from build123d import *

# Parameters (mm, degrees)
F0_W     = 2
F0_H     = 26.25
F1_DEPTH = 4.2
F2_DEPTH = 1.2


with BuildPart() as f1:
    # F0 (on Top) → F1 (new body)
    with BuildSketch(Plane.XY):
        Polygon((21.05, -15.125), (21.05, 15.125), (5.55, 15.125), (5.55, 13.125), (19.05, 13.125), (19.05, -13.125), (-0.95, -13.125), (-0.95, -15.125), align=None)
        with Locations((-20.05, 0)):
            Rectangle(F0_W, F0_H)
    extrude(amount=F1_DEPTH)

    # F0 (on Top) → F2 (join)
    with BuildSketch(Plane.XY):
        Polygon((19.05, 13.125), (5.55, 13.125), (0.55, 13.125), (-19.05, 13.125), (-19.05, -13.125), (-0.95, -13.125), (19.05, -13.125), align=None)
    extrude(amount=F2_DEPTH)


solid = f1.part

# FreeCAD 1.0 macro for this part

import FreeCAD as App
import Part
import Sketcher
from FreeCAD import Vector
Q = App.Units.Quantity


def add_polygon(sketch, points):
    """Adds a closed chain of lines whose ends are joined by coincident constraints."""
    first, n = sketch.GeometryCount, len(points)
    for a, b in zip(points, points[1:] + points[:1]):
        sketch.addGeometry(Part.LineSegment(App.Vector(*a, 0), App.Vector(*b, 0)), False)
    for i in range(n):
        sketch.addConstraint(Sketcher.Constraint("Coincident", first + i, 2, first + (i + 1) % n, 1))

doc = App.newDocument("Part")
params = doc.addObject("Spreadsheet::Sheet", "Params")
for row, (alias, value) in enumerate([
    ("sketch1_width", "20 mm"),
    ("sketch1_width2", "22 mm"),
    ("sketch1_width3", "2 mm"),
    ("sketch1_width4", "15.5 mm"),
    ("sketch1_height", "30.25 mm"),
    ("pad1_length", "4.2 mm"),
    ("sketch2_width", "38.1 mm"),
    ("sketch2_height", "26.25 mm"),
    ("pad2_length", "1.2 mm"),
], start=1):
    params.set(f"A{row}", alias)
    params.set(f"B{row}", "=" + value)
    params.setAlias(f"B{row}", alias)

body = doc.addObject("PartDesign::Body", "Body")
body.AllowCompound = True

# Sketch on XY plane
sketch1 = doc.addObject("Sketcher::SketchObject", "Sketch")
body.addObject(sketch1)
sketch1.AttachmentSupport = (doc.XY_Plane, [""])
sketch1.MapMode = "FlatFace"
add_polygon(sketch1, [(21.05, -15.125), (21.05, 15.125), (5.55, 15.125), (5.55, 13.125), (19.05, 13.125), (19.05, -13.125), (-0.95, -13.125), (-0.95, -15.125)])  # lines 0-7
add_polygon(sketch1, [(-21.05, 13.125), (-21.05, -13.125), (-19.05, -13.125), (-19.05, 13.125)])  # lines 8-11
sketch1.addConstraint([
    Sketcher.Constraint("Vertical", 0),
    Sketcher.Constraint("Horizontal", 1),
    Sketcher.Constraint("Vertical", 2),
    Sketcher.Constraint("Horizontal", 3),
    Sketcher.Constraint("Vertical", 4),
    Sketcher.Constraint("Horizontal", 5),
    Sketcher.Constraint("Vertical", 6),
    Sketcher.Constraint("Horizontal", 7),
    Sketcher.Constraint("Vertical", 8),
    Sketcher.Constraint("Horizontal", 9),
    Sketcher.Constraint("Vertical", 10),
    Sketcher.Constraint("Horizontal", 11),
    Sketcher.Constraint("Symmetric", 3, 2, 9, 2, -1, 1),
    Sketcher.Constraint("Horizontal", 5, 2, 8, 2),
    Sketcher.Constraint("Horizontal", 3, 2, 10, 2),
    Sketcher.Constraint("Equal", 11, 2),
    Sketcher.Constraint("Equal", 2, 6),
    Sketcher.Constraint("DistanceX", 5, 2, 5, 1, Q("20 mm")),
    Sketcher.Constraint("DistanceX", 7, 1, 7, 2, Q("22 mm")),
    Sketcher.Constraint("DistanceX", 9, 1, 9, 2, Q("2 mm")),
    Sketcher.Constraint("DistanceX", 1, 2, 1, 1, Q("15.5 mm")),
    Sketcher.Constraint("DistanceY", 0, 1, 0, 2, Q("30.25 mm")),
    Sketcher.Constraint("DistanceX", 8, 2, 5, 2, Q("20.1 mm")),
])
sketch1.setExpression("Constraints[29]", "Params.sketch1_width")
sketch1.setExpression("Constraints[30]", "Params.sketch1_width2")
sketch1.setExpression("Constraints[31]", "Params.sketch1_width3")
sketch1.setExpression("Constraints[32]", "Params.sketch1_width4")
sketch1.setExpression("Constraints[33]", "Params.sketch1_height")
pad1 = doc.addObject("PartDesign::Pad", "Pad")
body.addObject(pad1)
pad1.Profile = sketch1
pad1.setExpression("Length", "Params.pad1_length")

# Sketch on XY plane
sketch2 = doc.addObject("Sketcher::SketchObject", "Sketch001")
body.addObject(sketch2)
sketch2.AttachmentSupport = (doc.XY_Plane, [""])
sketch2.MapMode = "FlatFace"
add_polygon(sketch2, [(19.05, 13.125), (-19.05, 13.125), (-19.05, -13.125), (19.05, -13.125)])  # lines 0-3
sketch2.addConstraint([
    Sketcher.Constraint("Horizontal", 0),
    Sketcher.Constraint("Vertical", 1),
    Sketcher.Constraint("Horizontal", 2),
    Sketcher.Constraint("Vertical", 3),
    Sketcher.Constraint("Symmetric", 0, 2, 2, 2, -1, 1),
    Sketcher.Constraint("DistanceX", 0, 2, 0, 1, Q("38.1 mm")),
    Sketcher.Constraint("DistanceY", 1, 2, 1, 1, Q("26.25 mm")),
])
sketch2.setExpression("Constraints[9]", "Params.sketch2_width")
sketch2.setExpression("Constraints[10]", "Params.sketch2_height")
pad2 = doc.addObject("PartDesign::Pad", "Pad001")
body.addObject(pad2)
pad2.Profile = sketch2
pad2.setExpression("Length", "Params.pad2_length")

doc.recompute()
